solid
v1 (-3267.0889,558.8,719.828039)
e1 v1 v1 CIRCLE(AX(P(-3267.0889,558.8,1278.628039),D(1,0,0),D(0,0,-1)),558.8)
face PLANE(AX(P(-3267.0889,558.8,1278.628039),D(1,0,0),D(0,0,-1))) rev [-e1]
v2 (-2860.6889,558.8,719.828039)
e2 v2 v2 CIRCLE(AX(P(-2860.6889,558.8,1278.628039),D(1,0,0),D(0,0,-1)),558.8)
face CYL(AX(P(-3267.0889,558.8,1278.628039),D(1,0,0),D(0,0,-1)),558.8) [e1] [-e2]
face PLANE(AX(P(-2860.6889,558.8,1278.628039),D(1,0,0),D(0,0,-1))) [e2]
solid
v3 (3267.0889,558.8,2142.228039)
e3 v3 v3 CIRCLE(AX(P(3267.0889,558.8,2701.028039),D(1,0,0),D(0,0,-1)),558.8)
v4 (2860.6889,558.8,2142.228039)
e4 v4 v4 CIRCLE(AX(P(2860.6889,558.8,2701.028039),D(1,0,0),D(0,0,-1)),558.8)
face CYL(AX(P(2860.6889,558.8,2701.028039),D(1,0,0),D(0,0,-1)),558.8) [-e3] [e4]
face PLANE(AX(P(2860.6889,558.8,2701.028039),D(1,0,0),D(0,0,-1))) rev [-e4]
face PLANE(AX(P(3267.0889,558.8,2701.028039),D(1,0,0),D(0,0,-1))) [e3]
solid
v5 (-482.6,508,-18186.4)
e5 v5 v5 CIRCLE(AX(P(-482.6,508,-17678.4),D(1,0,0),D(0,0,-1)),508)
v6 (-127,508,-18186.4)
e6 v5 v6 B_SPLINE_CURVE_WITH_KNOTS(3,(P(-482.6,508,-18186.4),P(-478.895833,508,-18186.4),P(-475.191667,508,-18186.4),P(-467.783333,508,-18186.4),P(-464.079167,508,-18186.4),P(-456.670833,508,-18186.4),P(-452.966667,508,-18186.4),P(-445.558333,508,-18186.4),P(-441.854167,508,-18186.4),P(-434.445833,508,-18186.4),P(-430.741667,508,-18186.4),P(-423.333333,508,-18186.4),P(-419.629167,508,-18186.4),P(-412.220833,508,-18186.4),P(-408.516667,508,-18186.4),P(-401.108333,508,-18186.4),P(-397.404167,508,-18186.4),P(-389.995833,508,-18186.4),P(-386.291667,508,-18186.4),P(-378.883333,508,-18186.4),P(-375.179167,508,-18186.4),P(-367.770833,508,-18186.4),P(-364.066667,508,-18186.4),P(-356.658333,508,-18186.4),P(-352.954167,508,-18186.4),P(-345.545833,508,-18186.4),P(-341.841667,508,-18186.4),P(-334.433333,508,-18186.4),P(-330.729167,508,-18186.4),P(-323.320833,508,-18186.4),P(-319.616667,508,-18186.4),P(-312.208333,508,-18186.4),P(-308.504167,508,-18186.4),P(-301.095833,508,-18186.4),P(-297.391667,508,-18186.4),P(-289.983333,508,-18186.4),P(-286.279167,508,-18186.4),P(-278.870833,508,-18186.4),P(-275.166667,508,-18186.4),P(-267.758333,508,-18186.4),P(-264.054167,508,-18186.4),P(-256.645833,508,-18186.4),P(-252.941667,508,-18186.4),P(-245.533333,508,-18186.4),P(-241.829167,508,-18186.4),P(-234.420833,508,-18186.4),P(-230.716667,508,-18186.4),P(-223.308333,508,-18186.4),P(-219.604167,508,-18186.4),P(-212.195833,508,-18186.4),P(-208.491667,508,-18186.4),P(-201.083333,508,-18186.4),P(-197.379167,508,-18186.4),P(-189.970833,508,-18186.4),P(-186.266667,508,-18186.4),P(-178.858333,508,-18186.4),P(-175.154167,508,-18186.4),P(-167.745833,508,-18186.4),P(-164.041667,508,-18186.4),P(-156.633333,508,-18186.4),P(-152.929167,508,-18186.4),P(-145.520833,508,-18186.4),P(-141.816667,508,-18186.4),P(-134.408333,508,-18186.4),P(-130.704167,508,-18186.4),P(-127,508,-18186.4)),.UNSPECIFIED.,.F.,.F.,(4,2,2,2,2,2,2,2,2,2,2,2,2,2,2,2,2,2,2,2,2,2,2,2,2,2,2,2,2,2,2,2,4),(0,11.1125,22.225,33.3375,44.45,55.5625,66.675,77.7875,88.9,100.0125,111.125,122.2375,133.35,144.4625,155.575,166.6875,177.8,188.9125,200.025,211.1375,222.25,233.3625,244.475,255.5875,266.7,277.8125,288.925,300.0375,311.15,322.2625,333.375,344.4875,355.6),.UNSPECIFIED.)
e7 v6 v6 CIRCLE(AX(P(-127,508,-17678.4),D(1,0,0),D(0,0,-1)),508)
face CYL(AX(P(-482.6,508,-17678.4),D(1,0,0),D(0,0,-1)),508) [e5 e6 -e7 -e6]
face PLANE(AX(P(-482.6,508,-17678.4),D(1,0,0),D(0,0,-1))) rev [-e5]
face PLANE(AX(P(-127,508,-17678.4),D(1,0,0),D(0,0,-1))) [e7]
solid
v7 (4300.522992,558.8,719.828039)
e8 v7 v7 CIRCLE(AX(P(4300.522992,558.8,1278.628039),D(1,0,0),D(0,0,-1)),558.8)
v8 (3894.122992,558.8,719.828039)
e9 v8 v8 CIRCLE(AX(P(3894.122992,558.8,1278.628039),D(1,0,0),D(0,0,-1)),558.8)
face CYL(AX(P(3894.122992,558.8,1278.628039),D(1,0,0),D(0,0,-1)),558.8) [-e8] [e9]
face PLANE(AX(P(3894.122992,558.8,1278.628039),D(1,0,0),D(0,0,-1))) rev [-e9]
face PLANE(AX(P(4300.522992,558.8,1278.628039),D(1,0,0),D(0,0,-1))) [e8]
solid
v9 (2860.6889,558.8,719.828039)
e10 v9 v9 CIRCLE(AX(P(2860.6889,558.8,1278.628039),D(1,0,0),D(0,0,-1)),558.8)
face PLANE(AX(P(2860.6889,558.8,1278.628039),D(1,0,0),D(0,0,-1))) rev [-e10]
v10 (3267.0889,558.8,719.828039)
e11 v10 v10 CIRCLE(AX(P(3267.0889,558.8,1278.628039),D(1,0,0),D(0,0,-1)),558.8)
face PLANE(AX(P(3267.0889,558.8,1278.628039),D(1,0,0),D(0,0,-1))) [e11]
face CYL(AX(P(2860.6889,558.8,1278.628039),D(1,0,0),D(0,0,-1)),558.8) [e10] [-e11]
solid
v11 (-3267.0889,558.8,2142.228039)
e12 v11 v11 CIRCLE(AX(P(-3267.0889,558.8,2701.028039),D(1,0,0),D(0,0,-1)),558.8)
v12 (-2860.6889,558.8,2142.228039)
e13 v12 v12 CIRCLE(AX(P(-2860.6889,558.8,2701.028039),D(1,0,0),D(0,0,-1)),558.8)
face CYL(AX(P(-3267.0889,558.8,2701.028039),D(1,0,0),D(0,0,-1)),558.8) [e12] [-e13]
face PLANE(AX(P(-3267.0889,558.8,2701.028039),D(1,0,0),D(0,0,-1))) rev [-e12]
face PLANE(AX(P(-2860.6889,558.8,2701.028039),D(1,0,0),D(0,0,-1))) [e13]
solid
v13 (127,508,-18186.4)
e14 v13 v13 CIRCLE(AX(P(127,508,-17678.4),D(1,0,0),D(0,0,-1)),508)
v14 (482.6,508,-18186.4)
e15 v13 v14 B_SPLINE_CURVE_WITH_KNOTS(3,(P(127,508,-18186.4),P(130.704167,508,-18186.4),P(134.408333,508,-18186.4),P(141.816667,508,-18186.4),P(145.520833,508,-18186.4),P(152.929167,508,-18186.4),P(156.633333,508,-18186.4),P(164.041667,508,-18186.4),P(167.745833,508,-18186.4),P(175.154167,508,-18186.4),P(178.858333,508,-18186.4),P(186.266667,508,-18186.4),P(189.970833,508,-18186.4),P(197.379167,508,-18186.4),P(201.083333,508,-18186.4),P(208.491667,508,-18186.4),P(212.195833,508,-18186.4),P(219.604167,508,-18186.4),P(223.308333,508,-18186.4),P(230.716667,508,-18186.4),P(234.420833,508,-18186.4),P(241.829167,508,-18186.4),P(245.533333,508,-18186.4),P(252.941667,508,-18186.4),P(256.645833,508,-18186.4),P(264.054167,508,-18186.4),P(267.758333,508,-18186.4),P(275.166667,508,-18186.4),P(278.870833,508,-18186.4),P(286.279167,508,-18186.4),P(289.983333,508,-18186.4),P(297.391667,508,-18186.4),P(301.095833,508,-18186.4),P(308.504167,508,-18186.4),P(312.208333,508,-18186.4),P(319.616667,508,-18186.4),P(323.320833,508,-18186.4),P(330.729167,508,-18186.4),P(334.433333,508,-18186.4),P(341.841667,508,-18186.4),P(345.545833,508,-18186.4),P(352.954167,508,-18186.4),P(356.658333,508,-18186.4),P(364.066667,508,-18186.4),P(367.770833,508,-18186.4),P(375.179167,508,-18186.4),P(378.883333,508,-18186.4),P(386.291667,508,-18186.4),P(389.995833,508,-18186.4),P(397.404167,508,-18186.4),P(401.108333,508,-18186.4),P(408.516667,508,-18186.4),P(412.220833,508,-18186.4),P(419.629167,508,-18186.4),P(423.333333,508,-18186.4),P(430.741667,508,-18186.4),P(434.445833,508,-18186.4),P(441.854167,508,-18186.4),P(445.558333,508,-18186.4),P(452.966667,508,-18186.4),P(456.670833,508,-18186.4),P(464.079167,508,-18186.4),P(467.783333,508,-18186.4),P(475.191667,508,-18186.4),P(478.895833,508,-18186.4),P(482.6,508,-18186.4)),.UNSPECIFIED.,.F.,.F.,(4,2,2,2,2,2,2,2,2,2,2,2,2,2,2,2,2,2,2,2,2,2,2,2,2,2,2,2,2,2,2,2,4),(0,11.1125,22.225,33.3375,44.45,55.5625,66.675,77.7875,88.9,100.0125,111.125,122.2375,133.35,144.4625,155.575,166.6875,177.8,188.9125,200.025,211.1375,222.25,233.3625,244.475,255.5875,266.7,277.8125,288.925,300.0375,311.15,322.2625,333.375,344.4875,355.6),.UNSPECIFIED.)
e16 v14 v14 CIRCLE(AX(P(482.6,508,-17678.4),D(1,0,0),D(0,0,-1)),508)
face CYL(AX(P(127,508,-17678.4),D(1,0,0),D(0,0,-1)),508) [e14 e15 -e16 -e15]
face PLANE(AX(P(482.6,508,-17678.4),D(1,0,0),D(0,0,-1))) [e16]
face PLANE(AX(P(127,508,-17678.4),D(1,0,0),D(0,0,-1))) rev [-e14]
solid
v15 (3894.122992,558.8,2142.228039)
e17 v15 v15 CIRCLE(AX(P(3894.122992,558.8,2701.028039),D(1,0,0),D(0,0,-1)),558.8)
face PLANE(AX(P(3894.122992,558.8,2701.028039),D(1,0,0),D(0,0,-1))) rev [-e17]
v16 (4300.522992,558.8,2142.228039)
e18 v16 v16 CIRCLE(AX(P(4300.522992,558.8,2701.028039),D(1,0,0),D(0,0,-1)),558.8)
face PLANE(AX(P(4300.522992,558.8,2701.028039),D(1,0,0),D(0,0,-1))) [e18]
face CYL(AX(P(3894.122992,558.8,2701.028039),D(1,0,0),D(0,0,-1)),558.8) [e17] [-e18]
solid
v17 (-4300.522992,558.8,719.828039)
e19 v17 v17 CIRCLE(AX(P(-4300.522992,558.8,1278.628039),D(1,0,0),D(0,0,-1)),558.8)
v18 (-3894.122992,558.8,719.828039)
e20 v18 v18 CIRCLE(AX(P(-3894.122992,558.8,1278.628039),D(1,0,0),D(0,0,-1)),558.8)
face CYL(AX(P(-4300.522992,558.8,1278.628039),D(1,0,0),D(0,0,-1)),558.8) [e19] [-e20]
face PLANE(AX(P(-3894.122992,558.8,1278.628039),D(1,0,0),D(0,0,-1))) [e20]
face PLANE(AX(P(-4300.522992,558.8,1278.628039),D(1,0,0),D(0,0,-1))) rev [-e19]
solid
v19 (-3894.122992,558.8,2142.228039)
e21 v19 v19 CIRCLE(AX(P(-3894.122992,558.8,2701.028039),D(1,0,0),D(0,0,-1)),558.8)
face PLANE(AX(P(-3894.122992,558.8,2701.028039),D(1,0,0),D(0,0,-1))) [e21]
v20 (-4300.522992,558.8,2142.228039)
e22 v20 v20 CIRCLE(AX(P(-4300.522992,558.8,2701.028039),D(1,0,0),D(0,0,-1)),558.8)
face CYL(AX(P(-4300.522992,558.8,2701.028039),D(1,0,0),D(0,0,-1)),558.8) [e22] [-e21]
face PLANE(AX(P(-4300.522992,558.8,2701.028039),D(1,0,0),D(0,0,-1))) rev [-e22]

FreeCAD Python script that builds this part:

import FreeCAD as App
import Part
import Sketcher
from FreeCAD import Vector
Q = App.Units.Quantity

doc = App.newDocument("Part")
body = doc.addObject("PartDesign::Body", "Body")

# Sketch on YZ plane
sketch1 = doc.addObject("Sketcher::SketchObject", "Sketch")
body.addObject(sketch1)
sketch1.AttachmentSupport = (doc.YZ_Plane, [""])
sketch1.MapMode = "FlatFace"
sketch1.AttachmentOffset = App.Placement(Vector(0, 0, -3063.8889), App.Rotation())
sketch1.addGeometry(Part.Circle(Vector(559, 2701, 0), Vector(0, 0, 1), 559), False)
sketch1.addConstraint([
    Sketcher.Constraint("Diameter", 0, Q("44 in")),
    Sketcher.Constraint("DistanceX", -1, 1, 0, 3, Q("22 in")),
    Sketcher.Constraint("DistanceY", -1, 1, 0, 3, 2701.028039),
])
pad1 = doc.addObject("PartDesign::Pad", "Pad")
body.addObject(pad1)
pad1.Profile = sketch1
pad1.Type = "TwoLengths"
pad1.Length = Q("8 in")
pad1.Length2 = Q("8 in")
body2 = doc.addObject("PartDesign::Body", "Body001")

# Sketch on YZ plane
sketch2 = doc.addObject("Sketcher::SketchObject", "Sketch001")
body2.addObject(sketch2)
sketch2.AttachmentSupport = (doc.getObject("YZ_Plane001"), [""])
sketch2.MapMode = "FlatFace"
sketch2.AttachmentOffset = App.Placement(Vector(0, 0, -3063.8889), App.Rotation())
sketch2.addGeometry(Part.Circle(Vector(559, 1279, 0), Vector(0, 0, 1), 559), False)
sketch2.addConstraint([
    Sketcher.Constraint("Diameter", 0, Q("44 in")),
    Sketcher.Constraint("DistanceX", -1, 1, 0, 3, Q("22 in")),
    Sketcher.Constraint("DistanceY", -1, 1, 0, 3, 1278.628039),
])
pad2 = doc.addObject("PartDesign::Pad", "Pad001")
body2.addObject(pad2)
pad2.Profile = sketch2
pad2.Type = "TwoLengths"
pad2.Length = Q("8 in")
pad2.Length2 = Q("8 in")
body3 = doc.addObject("PartDesign::Body", "Body002")

# Sketch on YZ plane
sketch3 = doc.addObject("Sketcher::SketchObject", "Sketch002")
body3.addObject(sketch3)
sketch3.AttachmentSupport = (doc.getObject("YZ_Plane002"), [""])
sketch3.MapMode = "FlatFace"
sketch3.AttachmentOffset = App.Placement(Vector(0, 0, -4097.322992), App.Rotation())
sketch3.addGeometry(Part.Circle(Vector(559, 2701, 0), Vector(0, 0, 1), 559), False)
sketch3.addConstraint([
    Sketcher.Constraint("Diameter", 0, Q("44 in")),
    Sketcher.Constraint("DistanceX", -1, 1, 0, 3, Q("22 in")),
    Sketcher.Constraint("DistanceY", -1, 1, 0, 3, 2701.028039),
])
pad3 = doc.addObject("PartDesign::Pad", "Pad002")
body3.addObject(pad3)
pad3.Profile = sketch3
pad3.Type = "TwoLengths"
pad3.Length = Q("8 in")
pad3.Length2 = Q("8 in")
body4 = doc.addObject("PartDesign::Body", "Body003")

# Sketch on YZ plane
sketch4 = doc.addObject("Sketcher::SketchObject", "Sketch003")
body4.addObject(sketch4)
sketch4.AttachmentSupport = (doc.getObject("YZ_Plane003"), [""])
sketch4.MapMode = "FlatFace"
sketch4.AttachmentOffset = App.Placement(Vector(0, 0, -4097.322992), App.Rotation())
sketch4.addGeometry(Part.Circle(Vector(559, 1279, 0), Vector(0, 0, 1), 559), False)
sketch4.addConstraint([
    Sketcher.Constraint("Diameter", 0, Q("44 in")),
    Sketcher.Constraint("DistanceX", -1, 1, 0, 3, Q("22 in")),
    Sketcher.Constraint("DistanceY", -1, 1, 0, 3, 1278.628039),
])
pad4 = doc.addObject("PartDesign::Pad", "Pad003")
body4.addObject(pad4)
pad4.Profile = sketch4
pad4.Type = "TwoLengths"
pad4.Length = Q("8 in")
pad4.Length2 = Q("8 in")
body5 = doc.addObject("PartDesign::Body", "Body004")

# Sketch on YZ plane
sketch5 = doc.addObject("Sketcher::SketchObject", "Sketch004")
body5.addObject(sketch5)
sketch5.AttachmentSupport = (doc.getObject("YZ_Plane004"), [""])
sketch5.MapMode = "FlatFace"
sketch5.AttachmentOffset = App.Placement(Vector(0, 0, 3063.8889), App.Rotation())
sketch5.addGeometry(Part.Circle(Vector(559, 1279, 0), Vector(0, 0, 1), 559), False)
sketch5.addConstraint([
    Sketcher.Constraint("Diameter", 0, Q("44 in")),
    Sketcher.Constraint("DistanceX", -1, 1, 0, 3, Q("22 in")),
    Sketcher.Constraint("DistanceY", -1, 1, 0, 3, 1278.628039),
])
pad5 = doc.addObject("PartDesign::Pad", "Pad004")
body5.addObject(pad5)
pad5.Profile = sketch5
pad5.Type = "TwoLengths"
pad5.Length = Q("8 in")
pad5.Length2 = Q("8 in")
body6 = doc.addObject("PartDesign::Body", "Body005")

# Sketch on YZ plane
sketch6 = doc.addObject("Sketcher::SketchObject", "Sketch005")
body6.addObject(sketch6)
sketch6.AttachmentSupport = (doc.getObject("YZ_Plane005"), [""])
sketch6.MapMode = "FlatFace"
sketch6.AttachmentOffset = App.Placement(Vector(0, 0, 3063.8889), App.Rotation())
sketch6.addGeometry(Part.Circle(Vector(559, 2701, 0), Vector(0, 0, 1), 559), False)
sketch6.addConstraint([
    Sketcher.Constraint("Diameter", 0, Q("44 in")),
    Sketcher.Constraint("DistanceX", -1, 1, 0, 3, Q("22 in")),
    Sketcher.Constraint("DistanceY", -1, 1, 0, 3, 2701.028039),
])
pad6 = doc.addObject("PartDesign::Pad", "Pad005")
body6.addObject(pad6)
pad6.Profile = sketch6
pad6.Type = "TwoLengths"
pad6.Length = Q("8 in")
pad6.Length2 = Q("8 in")
body7 = doc.addObject("PartDesign::Body", "Body006")

# Sketch on YZ plane
sketch7 = doc.addObject("Sketcher::SketchObject", "Sketch006")
body7.addObject(sketch7)
sketch7.AttachmentSupport = (doc.getObject("YZ_Plane006"), [""])
sketch7.MapMode = "FlatFace"
sketch7.AttachmentOffset = App.Placement(Vector(0, 0, 4097.322992), App.Rotation())
sketch7.addGeometry(Part.Circle(Vector(559, 2701, 0), Vector(0, 0, 1), 559), False)
sketch7.addConstraint([
    Sketcher.Constraint("Diameter", 0, Q("44 in")),
    Sketcher.Constraint("DistanceX", -1, 1, 0, 3, Q("22 in")),
    Sketcher.Constraint("DistanceY", -1, 1, 0, 3, 2701.028039),
])
pad7 = doc.addObject("PartDesign::Pad", "Pad006")
body7.addObject(pad7)
pad7.Profile = sketch7
pad7.Type = "TwoLengths"
pad7.Length = Q("8 in")
pad7.Length2 = Q("8 in")
body8 = doc.addObject("PartDesign::Body", "Body007")

# Sketch on YZ plane
sketch8 = doc.addObject("Sketcher::SketchObject", "Sketch007")
body8.addObject(sketch8)
sketch8.AttachmentSupport = (doc.getObject("YZ_Plane007"), [""])
sketch8.MapMode = "FlatFace"
sketch8.AttachmentOffset = App.Placement(Vector(0, 0, 4097.322992), App.Rotation())
sketch8.addGeometry(Part.Circle(Vector(559, 1279, 0), Vector(0, 0, 1), 559), False)
sketch8.addConstraint([
    Sketcher.Constraint("Diameter", 0, Q("44 in")),
    Sketcher.Constraint("DistanceX", -1, 1, 0, 3, Q("22 in")),
    Sketcher.Constraint("DistanceY", -1, 1, 0, 3, 1278.628039),
])
pad8 = doc.addObject("PartDesign::Pad", "Pad007")
body8.addObject(pad8)
pad8.Profile = sketch8
pad8.Type = "TwoLengths"
pad8.Length = Q("8 in")
pad8.Length2 = Q("8 in")
body9 = doc.addObject("PartDesign::Body", "Body008")

# Sketch on YZ plane
sketch9 = doc.addObject("Sketcher::SketchObject", "Sketch008")
body9.addObject(sketch9)
sketch9.AttachmentSupport = (doc.getObject("YZ_Plane008"), [""])
sketch9.MapMode = "FlatFace"
sketch9.AttachmentOffset = App.Placement(Vector(0, 0, -12 * 25.4), App.Rotation())
sketch9.addGeometry(Part.Circle(Vector(508, -17678, 0), Vector(0, 0, 1), 508), False)
sketch9.addConstraint([
    Sketcher.Constraint("Diameter", 0, Q("40 in")),
    Sketcher.Constraint("DistanceX", -1, 1, 0, 3, Q("20 in")),
    Sketcher.Constraint("DistanceY", 0, 3, -1, 1, Q("696 in")),
])
pad9 = doc.addObject("PartDesign::Pad", "Pad008")
body9.addObject(pad9)
pad9.Profile = sketch9
pad9.Type = "TwoLengths"
pad9.Length = Q("7 in")
pad9.Length2 = Q("7 in")
body10 = doc.addObject("PartDesign::Body", "Body009")

# Sketch on YZ plane
sketch10 = doc.addObject("Sketcher::SketchObject", "Sketch009")
body10.addObject(sketch10)
sketch10.AttachmentSupport = (doc.getObject("YZ_Plane009"), [""])
sketch10.MapMode = "FlatFace"
sketch10.AttachmentOffset = App.Placement(Vector(0, 0, 12 * 25.4), App.Rotation())
sketch10.addGeometry(Part.Circle(Vector(508, -17678, 0), Vector(0, 0, 1), 508), False)
sketch10.addConstraint([
    Sketcher.Constraint("Diameter", 0, Q("40 in")),
    Sketcher.Constraint("DistanceX", -1, 1, 0, 3, Q("20 in")),
    Sketcher.Constraint("DistanceY", 0, 3, -1, 1, Q("696 in")),
])
pad10 = doc.addObject("PartDesign::Pad", "Pad009")
body10.addObject(pad10)
pad10.Profile = sketch10
pad10.Type = "TwoLengths"
pad10.Length = Q("7 in")
pad10.Length2 = Q("7 in")

doc.recompute()
